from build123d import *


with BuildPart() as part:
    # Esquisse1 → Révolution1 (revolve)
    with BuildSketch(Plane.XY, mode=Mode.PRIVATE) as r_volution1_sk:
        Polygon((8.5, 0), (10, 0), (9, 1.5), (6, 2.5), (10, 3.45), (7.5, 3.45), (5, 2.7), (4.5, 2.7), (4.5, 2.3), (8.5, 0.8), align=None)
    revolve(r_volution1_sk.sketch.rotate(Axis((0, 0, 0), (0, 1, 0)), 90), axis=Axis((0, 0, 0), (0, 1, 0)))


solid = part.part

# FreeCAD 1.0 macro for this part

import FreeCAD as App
import Part
import Sketcher

V = App.Vector
Q = App.Units.Quantity


def add_polygon(sketch, points):
    """Adds a closed chain of lines whose ends are joined by coincident constraints."""
    first, n = sketch.GeometryCount, len(points)
    for a, b in zip(points, points[1:] + points[:1]):
        sketch.addGeometry(Part.LineSegment(App.Vector(*a, 0), App.Vector(*b, 0)), False)
    for i in range(n):
        sketch.addConstraint(Sketcher.Constraint("Coincident", first + i, 2, first + (i + 1) % n, 1))

doc = App.newDocument("Part")
body = doc.addObject("PartDesign::Body", "Body")

# Sketch on XY plane
sketch1 = doc.addObject("Sketcher::SketchObject", "Sketch")
body.addObject(sketch1)
sketch1.AttachmentSupport = (doc.XY_Plane, [""])
sketch1.MapMode = "FlatFace"
add_polygon(sketch1, [(8.5, 0), (10, 0), (9, 1.5), (6, 2.5), (10, 3.45), (7.5, 3.45), (5, 2.7), (4.5, 2.7), (4.5, 2.3), (8.5, 0.8)])  # lines 0-9
sketch1.addConstraint([
    Sketcher.Constraint("Horizontal", 0),
    Sketcher.Constraint("Horizontal", 4),
    Sketcher.Constraint("Horizontal", 6),
    Sketcher.Constraint("Vertical", 7),
    Sketcher.Constraint("Vertical", 9),
    Sketcher.Constraint("PointOnObject", 0, 2, -1),
    Sketcher.Constraint("Vertical", 0, 2, 3, 2),
    Sketcher.Constraint("DistanceX", 0, 1, 0, 2, Q("1.5 mm")),
    Sketcher.Constraint("DistanceX", 4, 2, 4, 1, Q("2.5 mm")),
    Sketcher.Constraint("DistanceX", 6, 2, 6, 1, Q("0.5 mm")),
    Sketcher.Constraint("DistanceY", 7, 2, 7, 1, Q("0.4 mm")),
    Sketcher.Constraint("DistanceY", 9, 2, 9, 1, Q("0.8 mm")),
    Sketcher.Constraint("DistanceX", -1, 1, 0, 2, Q("10 mm")),
    Sketcher.Constraint("DistanceX", -1, 1, 1, 2, Q("9 mm")),
    Sketcher.Constraint("DistanceX", -1, 1, 2, 2, Q("6 mm")),
    Sketcher.Constraint("DistanceX", -1, 1, 5, 2, Q("5 mm")),
    Sketcher.Constraint("DistanceY", 1, 2, 2, 2, Q("1 mm")),
    Sketcher.Constraint("DistanceY", -1, 1, 1, 2, Q("1.5 mm")),
    Sketcher.Constraint("DistanceY", -1, 1, 5, 2, Q("2.7 mm")),
    Sketcher.Constraint("DistanceY", -1, 1, 3, 2, Q("3.45 mm")),
])
revolution = doc.addObject("PartDesign::Revolution", "Revolution")
body.addObject(revolution)
revolution.Profile = sketch1
revolution.ReferenceAxis = (sketch1, ["V_Axis"])
revolution.Angle = 360

doc.recompute()
